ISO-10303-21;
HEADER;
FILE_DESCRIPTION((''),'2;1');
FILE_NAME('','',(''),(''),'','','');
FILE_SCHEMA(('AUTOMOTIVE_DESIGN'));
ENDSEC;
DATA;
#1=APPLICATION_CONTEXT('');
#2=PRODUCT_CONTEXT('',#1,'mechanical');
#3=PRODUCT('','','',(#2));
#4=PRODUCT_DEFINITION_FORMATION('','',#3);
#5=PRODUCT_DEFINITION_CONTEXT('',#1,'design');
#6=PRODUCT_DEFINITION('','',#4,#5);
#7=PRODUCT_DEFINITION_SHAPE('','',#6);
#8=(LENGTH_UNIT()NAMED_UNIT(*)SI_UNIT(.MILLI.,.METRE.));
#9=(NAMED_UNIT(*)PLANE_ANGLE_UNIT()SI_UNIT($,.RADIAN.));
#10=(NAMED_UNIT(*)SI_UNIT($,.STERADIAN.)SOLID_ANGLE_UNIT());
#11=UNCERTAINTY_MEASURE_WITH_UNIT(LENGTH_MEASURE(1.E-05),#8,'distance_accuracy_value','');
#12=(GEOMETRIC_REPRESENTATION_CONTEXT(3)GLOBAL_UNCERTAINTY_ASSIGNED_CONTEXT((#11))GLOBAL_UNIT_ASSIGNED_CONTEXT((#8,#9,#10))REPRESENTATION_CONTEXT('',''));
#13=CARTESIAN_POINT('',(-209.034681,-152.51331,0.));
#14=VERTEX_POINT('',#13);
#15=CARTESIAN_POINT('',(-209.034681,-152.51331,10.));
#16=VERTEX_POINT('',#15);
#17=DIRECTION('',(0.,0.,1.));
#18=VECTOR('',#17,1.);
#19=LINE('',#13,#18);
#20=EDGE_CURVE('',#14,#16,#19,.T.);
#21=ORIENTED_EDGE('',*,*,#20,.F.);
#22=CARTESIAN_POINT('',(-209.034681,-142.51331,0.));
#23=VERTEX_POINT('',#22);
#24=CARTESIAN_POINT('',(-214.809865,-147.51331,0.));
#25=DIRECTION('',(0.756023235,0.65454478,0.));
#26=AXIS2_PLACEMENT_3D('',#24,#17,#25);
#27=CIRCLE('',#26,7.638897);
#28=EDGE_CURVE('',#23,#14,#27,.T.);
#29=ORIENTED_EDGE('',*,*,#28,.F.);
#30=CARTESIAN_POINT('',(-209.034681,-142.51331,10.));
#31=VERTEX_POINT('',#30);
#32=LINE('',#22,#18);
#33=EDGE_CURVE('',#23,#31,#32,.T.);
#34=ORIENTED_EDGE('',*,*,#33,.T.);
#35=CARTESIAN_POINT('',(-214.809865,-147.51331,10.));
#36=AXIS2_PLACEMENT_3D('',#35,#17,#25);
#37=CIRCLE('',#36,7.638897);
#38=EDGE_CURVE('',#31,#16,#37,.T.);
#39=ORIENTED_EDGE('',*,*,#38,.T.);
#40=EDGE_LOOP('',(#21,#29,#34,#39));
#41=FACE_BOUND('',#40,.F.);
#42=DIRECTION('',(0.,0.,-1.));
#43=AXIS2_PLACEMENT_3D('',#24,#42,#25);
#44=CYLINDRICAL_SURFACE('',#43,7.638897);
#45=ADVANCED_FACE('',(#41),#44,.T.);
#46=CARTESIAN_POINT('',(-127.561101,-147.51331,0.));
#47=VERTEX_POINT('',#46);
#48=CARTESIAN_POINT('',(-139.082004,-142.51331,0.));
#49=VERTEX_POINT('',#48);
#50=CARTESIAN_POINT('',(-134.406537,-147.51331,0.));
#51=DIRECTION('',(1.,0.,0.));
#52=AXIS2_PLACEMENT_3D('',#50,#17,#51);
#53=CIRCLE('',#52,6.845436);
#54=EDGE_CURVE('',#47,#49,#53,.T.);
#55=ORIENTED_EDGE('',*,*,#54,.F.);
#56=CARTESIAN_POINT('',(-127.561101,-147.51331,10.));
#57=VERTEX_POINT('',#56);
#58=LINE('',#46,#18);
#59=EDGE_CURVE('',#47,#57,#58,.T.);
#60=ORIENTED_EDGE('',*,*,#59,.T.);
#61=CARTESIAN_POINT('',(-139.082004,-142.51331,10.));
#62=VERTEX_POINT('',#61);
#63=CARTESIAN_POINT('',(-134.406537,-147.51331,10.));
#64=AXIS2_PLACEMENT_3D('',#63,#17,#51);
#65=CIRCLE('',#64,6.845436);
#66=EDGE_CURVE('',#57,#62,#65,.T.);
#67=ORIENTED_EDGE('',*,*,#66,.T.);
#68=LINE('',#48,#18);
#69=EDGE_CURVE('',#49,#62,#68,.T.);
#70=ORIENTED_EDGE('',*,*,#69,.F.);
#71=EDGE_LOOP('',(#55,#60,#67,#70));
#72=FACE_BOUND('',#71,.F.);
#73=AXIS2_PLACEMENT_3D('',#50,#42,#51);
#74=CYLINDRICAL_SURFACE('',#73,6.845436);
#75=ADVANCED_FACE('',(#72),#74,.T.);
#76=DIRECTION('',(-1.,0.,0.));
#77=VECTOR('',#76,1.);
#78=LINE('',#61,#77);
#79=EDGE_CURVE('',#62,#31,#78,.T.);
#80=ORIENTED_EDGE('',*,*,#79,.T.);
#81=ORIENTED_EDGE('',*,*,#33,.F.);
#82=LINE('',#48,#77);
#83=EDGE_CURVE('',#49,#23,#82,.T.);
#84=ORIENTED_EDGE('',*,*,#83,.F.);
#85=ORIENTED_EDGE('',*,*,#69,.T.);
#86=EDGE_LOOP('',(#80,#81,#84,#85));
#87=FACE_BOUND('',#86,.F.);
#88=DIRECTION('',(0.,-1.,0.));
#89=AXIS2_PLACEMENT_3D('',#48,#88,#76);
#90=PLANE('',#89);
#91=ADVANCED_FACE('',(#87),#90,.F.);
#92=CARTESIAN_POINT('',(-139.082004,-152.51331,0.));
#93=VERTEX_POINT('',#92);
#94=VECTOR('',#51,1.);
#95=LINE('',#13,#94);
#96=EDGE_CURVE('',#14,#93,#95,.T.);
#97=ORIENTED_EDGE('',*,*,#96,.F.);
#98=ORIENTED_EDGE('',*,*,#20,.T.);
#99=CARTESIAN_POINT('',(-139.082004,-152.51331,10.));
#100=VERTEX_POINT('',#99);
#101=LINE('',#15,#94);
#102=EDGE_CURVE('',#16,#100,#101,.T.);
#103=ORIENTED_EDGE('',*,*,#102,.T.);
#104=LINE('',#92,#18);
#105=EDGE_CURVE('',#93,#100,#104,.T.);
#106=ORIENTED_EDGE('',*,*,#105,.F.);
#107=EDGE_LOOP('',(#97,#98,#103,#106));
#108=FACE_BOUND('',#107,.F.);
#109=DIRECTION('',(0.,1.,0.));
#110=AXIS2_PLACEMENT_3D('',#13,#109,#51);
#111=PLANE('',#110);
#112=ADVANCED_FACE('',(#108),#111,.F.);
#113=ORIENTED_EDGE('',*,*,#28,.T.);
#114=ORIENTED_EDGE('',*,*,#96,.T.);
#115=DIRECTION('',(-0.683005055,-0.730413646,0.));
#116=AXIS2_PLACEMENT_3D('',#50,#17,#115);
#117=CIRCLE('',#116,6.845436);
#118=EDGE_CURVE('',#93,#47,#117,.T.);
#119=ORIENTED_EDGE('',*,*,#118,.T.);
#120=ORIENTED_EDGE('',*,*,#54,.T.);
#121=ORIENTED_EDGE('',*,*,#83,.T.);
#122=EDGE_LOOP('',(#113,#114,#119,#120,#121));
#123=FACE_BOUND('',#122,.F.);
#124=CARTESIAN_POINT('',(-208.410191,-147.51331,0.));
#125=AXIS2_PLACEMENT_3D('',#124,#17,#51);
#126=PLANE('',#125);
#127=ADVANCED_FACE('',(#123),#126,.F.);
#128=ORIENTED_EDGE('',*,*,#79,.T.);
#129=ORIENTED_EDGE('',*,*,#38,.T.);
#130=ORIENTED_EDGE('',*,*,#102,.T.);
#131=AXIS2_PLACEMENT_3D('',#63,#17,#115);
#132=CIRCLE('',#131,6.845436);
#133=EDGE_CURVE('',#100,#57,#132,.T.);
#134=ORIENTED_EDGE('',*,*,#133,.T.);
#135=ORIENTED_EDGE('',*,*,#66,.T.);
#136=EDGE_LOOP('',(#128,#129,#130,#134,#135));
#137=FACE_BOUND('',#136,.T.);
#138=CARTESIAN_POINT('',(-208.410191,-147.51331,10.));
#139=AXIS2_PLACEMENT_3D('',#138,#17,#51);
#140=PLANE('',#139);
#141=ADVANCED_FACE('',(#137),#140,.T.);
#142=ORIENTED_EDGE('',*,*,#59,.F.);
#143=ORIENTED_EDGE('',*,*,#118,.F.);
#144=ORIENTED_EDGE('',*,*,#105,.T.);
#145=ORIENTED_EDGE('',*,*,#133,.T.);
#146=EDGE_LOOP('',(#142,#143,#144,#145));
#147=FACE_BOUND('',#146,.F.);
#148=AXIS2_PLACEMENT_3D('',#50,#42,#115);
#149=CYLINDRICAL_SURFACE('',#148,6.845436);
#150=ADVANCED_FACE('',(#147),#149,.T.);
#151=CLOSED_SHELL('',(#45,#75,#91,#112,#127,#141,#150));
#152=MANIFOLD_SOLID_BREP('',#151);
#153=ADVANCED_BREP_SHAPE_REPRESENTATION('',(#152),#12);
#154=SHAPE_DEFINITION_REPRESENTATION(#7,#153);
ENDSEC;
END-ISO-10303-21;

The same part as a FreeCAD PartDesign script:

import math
import FreeCAD as App
import Part
import Sketcher
Q = App.Units.Quantity

doc = App.newDocument("Part")
body = doc.addObject("PartDesign::Body", "Body")

sketch1 = body.newObject("Sketcher::SketchObject", "Sketch")
sketch1.AttachmentSupport = (doc.getObject("XY_Plane"), [""])
sketch1.MapMode = "FlatFace"
sketch1.addGeometry([
    Part.LineSegment(App.Vector(-209.034681, -152.51331, 0), App.Vector(-139.082004, -152.51331, 0)),
    Part.ArcOfCircle(Part.Circle(App.Vector(-134.406537, -147.51331, 0), App.Vector(0, 0, 1), 6.845436), math.radians(-133.078917), math.radians(0)),
    Part.ArcOfCircle(Part.Circle(App.Vector(-134.406537, -147.51331, 0), App.Vector(0, 0, 1), 6.845436), math.radians(0), math.radians(133.078917)),
    Part.LineSegment(App.Vector(-139.082004, -142.51331, 0), App.Vector(-209.034681, -142.51331, 0)),
    Part.ArcOfCircle(Part.Circle(App.Vector(-214.809865, -147.51331, 0), App.Vector(0, 0, 1), 7.638897), math.radians(40.885142), math.radians(319.114858)),
], False)
sketch1.addConstraint([
    Sketcher.Constraint("Coincident", 0, 2, 1, 1),
    Sketcher.Constraint("Tangent", 1, 2, 2, 1),
    Sketcher.Constraint("Coincident", 2, 2, 3, 1),
    Sketcher.Constraint("Coincident", 3, 2, 4, 1),
    Sketcher.Constraint("Coincident", 4, 2, 0, 1),
    Sketcher.Constraint("Horizontal", 0),
    Sketcher.Constraint("Horizontal", 3),
    Sketcher.Constraint("Equal", 1, 2),
    Sketcher.Constraint("Horizontal", 2, 3, 4, 3),
    Sketcher.Constraint("Horizontal", 4, 3, 1, 2),
    Sketcher.Constraint("Vertical", 0, 2, 2, 2),
    Sketcher.Constraint("DistanceY", 0, 2, 1, 3, Q("5 mm")),
    Sketcher.Constraint("Radius", 1, Q("6.845436 mm")),
    Sketcher.Constraint("Radius", 4, Q("7.638897 mm")),
    Sketcher.Constraint("DistanceX", 1, 2, -1, 1, Q("127.561101 mm")),
    Sketcher.Constraint("DistanceX", 0, 1, 0, 2, Q("69.952677 mm")),
    Sketcher.Constraint("DistanceY", 1, 3, -1, 1, Q("147.51331 mm")),
])
pad1 = body.newObject("PartDesign::Pad", "Pad")
pad1.Profile = sketch1
pad1.Length = 10

doc.recompute()
